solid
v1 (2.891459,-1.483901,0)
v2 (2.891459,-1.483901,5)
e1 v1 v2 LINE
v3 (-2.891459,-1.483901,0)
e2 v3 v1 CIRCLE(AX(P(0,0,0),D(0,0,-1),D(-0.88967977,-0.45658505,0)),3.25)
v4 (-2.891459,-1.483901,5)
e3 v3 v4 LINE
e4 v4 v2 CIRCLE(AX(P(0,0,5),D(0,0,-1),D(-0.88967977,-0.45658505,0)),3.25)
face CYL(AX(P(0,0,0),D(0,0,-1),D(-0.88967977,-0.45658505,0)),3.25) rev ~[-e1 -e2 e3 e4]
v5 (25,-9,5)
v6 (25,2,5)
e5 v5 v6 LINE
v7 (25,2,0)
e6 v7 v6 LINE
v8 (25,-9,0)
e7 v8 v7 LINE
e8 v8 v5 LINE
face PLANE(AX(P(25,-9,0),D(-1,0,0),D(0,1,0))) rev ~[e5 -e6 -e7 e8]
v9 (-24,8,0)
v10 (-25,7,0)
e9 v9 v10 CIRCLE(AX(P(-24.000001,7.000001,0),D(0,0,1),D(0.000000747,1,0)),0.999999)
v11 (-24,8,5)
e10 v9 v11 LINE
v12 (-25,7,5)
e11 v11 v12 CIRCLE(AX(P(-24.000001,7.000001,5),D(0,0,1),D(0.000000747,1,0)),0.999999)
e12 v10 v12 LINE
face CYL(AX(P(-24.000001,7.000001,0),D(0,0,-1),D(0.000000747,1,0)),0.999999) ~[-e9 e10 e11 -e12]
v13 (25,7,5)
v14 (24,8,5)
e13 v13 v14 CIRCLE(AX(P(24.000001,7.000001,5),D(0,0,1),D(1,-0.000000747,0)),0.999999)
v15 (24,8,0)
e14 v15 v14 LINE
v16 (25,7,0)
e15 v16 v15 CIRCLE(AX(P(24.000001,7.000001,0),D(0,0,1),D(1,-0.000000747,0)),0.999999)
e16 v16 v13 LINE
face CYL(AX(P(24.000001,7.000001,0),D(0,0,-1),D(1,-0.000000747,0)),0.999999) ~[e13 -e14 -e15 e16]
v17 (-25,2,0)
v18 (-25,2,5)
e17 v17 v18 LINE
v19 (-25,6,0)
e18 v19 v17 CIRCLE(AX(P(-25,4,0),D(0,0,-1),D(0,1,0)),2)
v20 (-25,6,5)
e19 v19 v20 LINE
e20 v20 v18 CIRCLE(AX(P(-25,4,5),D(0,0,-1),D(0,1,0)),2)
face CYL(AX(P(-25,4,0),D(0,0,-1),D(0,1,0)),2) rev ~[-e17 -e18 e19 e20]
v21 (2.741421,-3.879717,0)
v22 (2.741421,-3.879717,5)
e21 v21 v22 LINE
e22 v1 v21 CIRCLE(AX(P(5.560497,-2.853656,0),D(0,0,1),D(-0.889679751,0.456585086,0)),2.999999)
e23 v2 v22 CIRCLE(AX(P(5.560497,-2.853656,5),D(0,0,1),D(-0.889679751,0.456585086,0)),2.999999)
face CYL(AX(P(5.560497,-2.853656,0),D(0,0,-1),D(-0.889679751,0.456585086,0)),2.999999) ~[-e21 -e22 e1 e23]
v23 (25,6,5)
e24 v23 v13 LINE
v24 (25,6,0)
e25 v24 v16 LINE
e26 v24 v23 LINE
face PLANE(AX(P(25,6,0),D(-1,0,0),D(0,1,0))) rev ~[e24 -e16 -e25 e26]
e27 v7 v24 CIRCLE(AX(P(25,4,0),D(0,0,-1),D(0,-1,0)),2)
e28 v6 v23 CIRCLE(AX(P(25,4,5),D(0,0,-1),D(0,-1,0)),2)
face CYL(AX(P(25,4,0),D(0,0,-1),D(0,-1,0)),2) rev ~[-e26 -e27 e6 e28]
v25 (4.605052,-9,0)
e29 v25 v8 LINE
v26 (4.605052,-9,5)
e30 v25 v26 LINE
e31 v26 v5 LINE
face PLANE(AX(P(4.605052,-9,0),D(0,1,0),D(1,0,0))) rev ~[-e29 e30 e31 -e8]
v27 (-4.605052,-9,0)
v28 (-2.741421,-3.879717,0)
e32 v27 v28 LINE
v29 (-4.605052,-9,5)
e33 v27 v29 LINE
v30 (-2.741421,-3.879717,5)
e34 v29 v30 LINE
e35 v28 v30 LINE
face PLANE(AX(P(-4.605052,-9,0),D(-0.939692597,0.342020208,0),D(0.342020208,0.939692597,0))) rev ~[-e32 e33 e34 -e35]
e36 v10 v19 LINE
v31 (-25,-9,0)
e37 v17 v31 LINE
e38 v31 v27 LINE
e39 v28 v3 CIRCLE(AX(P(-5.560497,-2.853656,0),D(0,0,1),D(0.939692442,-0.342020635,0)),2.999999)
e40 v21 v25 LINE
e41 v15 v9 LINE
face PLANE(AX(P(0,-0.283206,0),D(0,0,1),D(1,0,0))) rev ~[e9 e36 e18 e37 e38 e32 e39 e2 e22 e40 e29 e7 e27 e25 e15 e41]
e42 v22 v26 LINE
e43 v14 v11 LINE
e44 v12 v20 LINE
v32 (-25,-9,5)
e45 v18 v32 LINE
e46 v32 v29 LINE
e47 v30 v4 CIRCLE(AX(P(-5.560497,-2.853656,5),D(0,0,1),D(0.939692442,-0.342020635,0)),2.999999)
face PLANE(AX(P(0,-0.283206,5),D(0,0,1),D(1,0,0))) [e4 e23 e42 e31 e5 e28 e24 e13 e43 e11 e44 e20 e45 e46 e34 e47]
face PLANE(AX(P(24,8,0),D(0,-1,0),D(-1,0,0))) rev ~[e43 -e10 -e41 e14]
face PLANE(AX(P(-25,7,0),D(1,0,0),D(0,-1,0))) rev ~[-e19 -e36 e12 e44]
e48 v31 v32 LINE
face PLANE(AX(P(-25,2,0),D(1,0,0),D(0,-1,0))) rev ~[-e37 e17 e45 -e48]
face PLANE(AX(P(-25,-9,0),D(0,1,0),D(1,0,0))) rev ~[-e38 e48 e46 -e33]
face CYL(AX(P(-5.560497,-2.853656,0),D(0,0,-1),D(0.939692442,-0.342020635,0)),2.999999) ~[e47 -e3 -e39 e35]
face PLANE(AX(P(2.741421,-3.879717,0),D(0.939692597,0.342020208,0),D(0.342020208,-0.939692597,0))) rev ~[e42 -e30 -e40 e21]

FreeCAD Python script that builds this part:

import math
import FreeCAD as App
import Part
import Sketcher

V = App.Vector
Q = App.Units.Quantity

doc = App.newDocument("Part")
body = doc.addObject("PartDesign::Body", "Body")

# Sketch on XY plane
sketch1 = body.newObject("Sketcher::SketchObject", "Sketch")
sketch1.AttachmentSupport = (doc.getObject("XY_Plane"), [""])
sketch1.MapMode = "FlatFace"
sketch1.addGeometry([
    Part.ArcOfCircle(Part.Circle(V(0, 0, 0), V(0, 0, 1), 3.2), math.radians(-27), math.radians(207)),  # 0
    Part.ArcOfCircle(Part.Circle(V(5.6, -2.9, 0), V(0, 0, 1), 3), math.radians(153), math.radians(200)),  # 1
    Part.LineSegment(V(2.7, -3.9, 0), V(4.6, -9, 0)),  # 2
    Part.LineSegment(V(4.6, -9, 0), V(25, -9, 0)),  # 3
    Part.LineSegment(V(25, -9, 0), V(25, 2, 0)),  # 4
    Part.ArcOfCircle(Part.Circle(V(25, 4, 0), V(0, 0, 1), 2), math.radians(90), math.radians(270)),  # 5
    Part.LineSegment(V(25, 6, 0), V(25, 7, 0)),  # 6
    Part.ArcOfCircle(Part.Circle(V(24, 7, 0), V(0, 0, 1), 1), math.radians(0), math.radians(90)),  # 7
    Part.LineSegment(V(24, 8, 0), V(-24, 8, 0)),  # 8
    Part.ArcOfCircle(Part.Circle(V(-24, 7, 0), V(0, 0, 1), 1), math.radians(90), math.radians(180)),  # 9
    Part.LineSegment(V(-25, 7, 0), V(-25, 6, 0)),  # 10
    Part.ArcOfCircle(Part.Circle(V(-25, 4, 0), V(0, 0, 1), 2), math.radians(-90), math.radians(90)),  # 11
    Part.LineSegment(V(-25, 2, 0), V(-25, -9, 0)),  # 12
    Part.LineSegment(V(-25, -9, 0), V(-4.6, -9, 0)),  # 13
    Part.LineSegment(V(-4.6, -9, 0), V(-2.7, -3.9, 0)),  # 14
    Part.ArcOfCircle(Part.Circle(V(-5.6, -2.9, 0), V(0, 0, 1), 3), math.radians(-20), math.radians(27)),  # 15
], False)
sketch1.addConstraint([
    Sketcher.Constraint("Tangent", 0, 1, 1, 1),
    Sketcher.Constraint("Tangent", 1, 2, 2, 1),
    Sketcher.Constraint("Coincident", 2, 2, 3, 1),
    Sketcher.Constraint("Coincident", 3, 2, 4, 1),
    Sketcher.Constraint("Coincident", 4, 2, 5, 2),
    Sketcher.Constraint("Coincident", 5, 1, 6, 1),
    Sketcher.Constraint("Tangent", 6, 2, 7, 1),
    Sketcher.Constraint("Tangent", 7, 2, 8, 1),
    Sketcher.Constraint("Tangent", 8, 2, 9, 1),
    Sketcher.Constraint("Tangent", 9, 2, 10, 1),
    Sketcher.Constraint("Coincident", 10, 2, 11, 2),
    Sketcher.Constraint("Coincident", 11, 1, 12, 1),
    Sketcher.Constraint("Coincident", 12, 2, 13, 1),
    Sketcher.Constraint("Coincident", 13, 2, 14, 1),
    Sketcher.Constraint("Tangent", 14, 2, 15, 1),
    Sketcher.Constraint("Tangent", 15, 2, 0, 2),
    Sketcher.Constraint("Horizontal", 3),
    Sketcher.Constraint("Vertical", 4),
    Sketcher.Constraint("Vertical", 6),
    Sketcher.Constraint("Horizontal", 8),
    Sketcher.Constraint("Vertical", 10),
    Sketcher.Constraint("Vertical", 12),
    Sketcher.Constraint("Horizontal", 13),
    Sketcher.Constraint("Coincident", 0, 3, -1, 1),
    Sketcher.Constraint("Equal", 7, 9),
    Sketcher.Constraint("Equal", 5, 11),
    Sketcher.Constraint("Equal", 1, 15),
    Sketcher.Constraint("Symmetric", 5, 3, 11, 3, -2),
    Sketcher.Constraint("Symmetric", 3, 2, 12, 2, -2),
    Sketcher.Constraint("Symmetric", 1, 2, 14, 2, -2),
    Sketcher.Constraint("Vertical", 5, 3, 3, 2),
    Sketcher.Constraint("Vertical", 4, 2, 5, 1),
    Sketcher.Constraint("Vertical", 11, 3, 9, 2),
    Sketcher.Constraint("Radius", 1, 2.999999),
    Sketcher.Constraint("Radius", 5, 2.0),
    Sketcher.Constraint("Radius", 7, 0.999999),
    Sketcher.Constraint("DistanceX", 8, 2, 8, 1, 48.0),
    Sketcher.Constraint("DistanceY", 4, 1, 4, 2, 11.0),
    Sketcher.Constraint("DistanceY", 6, 1, 6, 2, 1.0),
    Sketcher.Constraint("Angle", 2, Q("-69.999996 deg")),
    Sketcher.Constraint("Radius", 0, 3.25),
    Sketcher.Constraint("DistanceY", -1, 1, 5, 3, 4.0),
    Sketcher.Constraint("DistanceY", 0, 1, -1, 1, 1.483901),
])
pad1 = body.newObject("PartDesign::Pad", "Pad")
pad1.Profile = sketch1
pad1.Length = 5

doc.recompute()
